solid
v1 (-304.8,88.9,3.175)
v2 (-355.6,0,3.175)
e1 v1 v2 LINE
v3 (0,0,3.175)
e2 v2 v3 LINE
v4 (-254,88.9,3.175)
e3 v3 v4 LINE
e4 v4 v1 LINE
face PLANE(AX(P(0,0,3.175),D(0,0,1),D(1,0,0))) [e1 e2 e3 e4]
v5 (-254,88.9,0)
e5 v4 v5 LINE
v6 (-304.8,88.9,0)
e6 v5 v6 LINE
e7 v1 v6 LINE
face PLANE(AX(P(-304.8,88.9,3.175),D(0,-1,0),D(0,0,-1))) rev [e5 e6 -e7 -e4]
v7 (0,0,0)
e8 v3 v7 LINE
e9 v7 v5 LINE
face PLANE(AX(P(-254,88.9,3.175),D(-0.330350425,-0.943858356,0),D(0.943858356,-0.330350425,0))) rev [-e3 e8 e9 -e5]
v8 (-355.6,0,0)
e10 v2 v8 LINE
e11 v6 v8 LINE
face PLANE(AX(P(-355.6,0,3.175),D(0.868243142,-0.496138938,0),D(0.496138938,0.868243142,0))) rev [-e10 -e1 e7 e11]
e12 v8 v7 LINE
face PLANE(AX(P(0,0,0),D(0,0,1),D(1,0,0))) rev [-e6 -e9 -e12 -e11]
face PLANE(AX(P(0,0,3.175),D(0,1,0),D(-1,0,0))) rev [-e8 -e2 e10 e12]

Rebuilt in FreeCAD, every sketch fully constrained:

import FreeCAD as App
import Part
import Sketcher
Q = App.Units.Quantity


def add_polygon(sketch, points):
    """Adds a closed chain of lines whose ends are joined by coincident constraints."""
    first, n = sketch.GeometryCount, len(points)
    for a, b in zip(points, points[1:] + points[:1]):
        sketch.addGeometry(Part.LineSegment(App.Vector(*a, 0), App.Vector(*b, 0)), False)
    for i in range(n):
        sketch.addConstraint(Sketcher.Constraint("Coincident", first + i, 2, first + (i + 1) % n, 1))

doc = App.newDocument("Part")
body = doc.addObject("PartDesign::Body", "Body")

# Sketch on XY plane
sketch1 = body.newObject("Sketcher::SketchObject", "Sketch")
sketch1.AttachmentSupport = (doc.getObject("XY_Plane"), [""])
sketch1.MapMode = "FlatFace"
add_polygon(sketch1, [(-356, 0), (0, 0), (-254, 89), (-305, 89)])  # lines 0-3
sketch1.addConstraint(Sketcher.Constraint("Horizontal", 0))
sketch1.addConstraint(Sketcher.Constraint("Horizontal", 2))
sketch1.addConstraint(Sketcher.Constraint("Coincident", 0, 2, -1, 1))
sketch1.addConstraint(Sketcher.Constraint("DistanceX", 0, 1, 0, 2, Q("14 in")))
sketch1.addConstraint(Sketcher.Constraint("DistanceX", 2, 2, 2, 1, Q("2 in")))
sketch1.addConstraint(Sketcher.Constraint("DistanceX", 1, 2, -1, 1, Q("10 in")))
sketch1.addConstraint(Sketcher.Constraint("DistanceY", -1, 1, 1, 2, Q("3.5 in")))
pad1 = body.newObject("PartDesign::Pad", "Pad")
pad1.Profile = sketch1
pad1.Length = Q("0.125 in")

doc.recompute()
